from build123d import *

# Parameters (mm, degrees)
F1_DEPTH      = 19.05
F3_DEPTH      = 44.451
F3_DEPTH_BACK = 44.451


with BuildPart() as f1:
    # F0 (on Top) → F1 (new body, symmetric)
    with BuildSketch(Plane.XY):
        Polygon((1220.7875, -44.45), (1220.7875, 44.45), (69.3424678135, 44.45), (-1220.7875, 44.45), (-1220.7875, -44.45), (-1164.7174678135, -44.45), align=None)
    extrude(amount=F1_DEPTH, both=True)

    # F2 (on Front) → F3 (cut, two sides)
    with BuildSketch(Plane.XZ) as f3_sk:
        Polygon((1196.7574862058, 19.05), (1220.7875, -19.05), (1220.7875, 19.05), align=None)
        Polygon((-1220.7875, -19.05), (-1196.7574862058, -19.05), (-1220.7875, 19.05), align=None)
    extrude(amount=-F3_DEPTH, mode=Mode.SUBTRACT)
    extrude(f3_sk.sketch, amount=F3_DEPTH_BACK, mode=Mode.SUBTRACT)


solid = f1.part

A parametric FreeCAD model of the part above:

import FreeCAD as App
import Part
import Sketcher

V = App.Vector
Q = App.Units.Quantity

doc = App.newDocument("Part")
body = doc.addObject("PartDesign::Body", "Body")

# Sketch on XY plane
sketch1 = body.newObject("Sketcher::SketchObject", "Sketch")
sketch1.AttachmentSupport = (doc.getObject("XY_Plane"), [""])
sketch1.MapMode = "FlatFace"
sketch1.addGeometry(Part.LineSegment(V(1220.7875, -44.45, 0), V(1220.7875, 44.45, 0)), False)
sketch1.addGeometry(Part.LineSegment(V(1220.7875, 44.45, 0), V(-1220.7875, 44.45, 0)), False)
sketch1.addGeometry(Part.LineSegment(V(-1220.7875, 44.45, 0), V(-1220.7875, -44.45, 0)), False)
sketch1.addGeometry(Part.LineSegment(V(-1220.7875, -44.45, 0), V(1220.7875, -44.45, 0)), False)
sketch1.addConstraint(Sketcher.Constraint("Coincident", 0, 2, 1, 1))
sketch1.addConstraint(Sketcher.Constraint("Coincident", 1, 2, 2, 1))
sketch1.addConstraint(Sketcher.Constraint("Coincident", 2, 2, 3, 1))
sketch1.addConstraint(Sketcher.Constraint("Coincident", 3, 2, 0, 1))
sketch1.addConstraint(Sketcher.Constraint("Vertical", 0))
sketch1.addConstraint(Sketcher.Constraint("Horizontal", 1))
sketch1.addConstraint(Sketcher.Constraint("Vertical", 2))
sketch1.addConstraint(Sketcher.Constraint("Horizontal", 3))
sketch1.addConstraint(Sketcher.Constraint("Symmetric", 0, 2, 2, 2, -1, 1))
sketch1.addConstraint(Sketcher.Constraint("DistanceY", 0, 1, 0, 2, Q("3.5 in")))
sketch1.addConstraint(Sketcher.Constraint("DistanceX", 1, 2, 1, 1, Q("96.125 in")))
pad1 = body.newObject("PartDesign::Pad", "Pad")
pad1.Profile = sketch1
pad1.Length = Q("1.5 in")
pad1.Midplane = True

# Sketch on XZ plane
sketch2 = body.newObject("Sketcher::SketchObject", "Sketch001")
sketch2.AttachmentSupport = (doc.getObject("XZ_Plane"), [""])
sketch2.MapMode = "FlatFace"
sketch2.addGeometry(Part.LineSegment(V(1196.757486, 19.05, 0), V(1220.7875, -19.05, 0)), False)
sketch2.addGeometry(Part.LineSegment(V(1220.7875, -19.05, 0), V(1220.7875, 19.05, 0)), False)
sketch2.addGeometry(Part.LineSegment(V(1220.7875, 19.05, 0), V(1196.757486, 19.05, 0)), False)
sketch2.addGeometry(Part.LineSegment(V(-1220.7875, -19.05, 0), V(-1196.757486, -19.05, 0)), False)
sketch2.addGeometry(Part.LineSegment(V(-1196.757486, -19.05, 0), V(-1220.7875, 19.05, 0)), False)
sketch2.addGeometry(Part.LineSegment(V(-1220.7875, 19.05, 0), V(-1220.7875, -19.05, 0)), False)
sketch2.addConstraint(Sketcher.Constraint("Coincident", 0, 2, 1, 1))
sketch2.addConstraint(Sketcher.Constraint("Coincident", 1, 2, 2, 1))
sketch2.addConstraint(Sketcher.Constraint("Coincident", 2, 2, 0, 1))
sketch2.addConstraint(Sketcher.Constraint("Coincident", 3, 2, 4, 1))
sketch2.addConstraint(Sketcher.Constraint("Coincident", 4, 2, 5, 1))
sketch2.addConstraint(Sketcher.Constraint("Coincident", 5, 2, 3, 1))
sketch2.addConstraint(Sketcher.Constraint("Vertical", 1))
sketch2.addConstraint(Sketcher.Constraint("Horizontal", 2))
sketch2.addConstraint(Sketcher.Constraint("Horizontal", 3))
sketch2.addConstraint(Sketcher.Constraint("Vertical", 5))
sketch2.addConstraint(Sketcher.Constraint("Symmetric", 2, 2, 3, 2, -1, 1))
sketch2.addConstraint(Sketcher.Constraint("Symmetric", 0, 2, 4, 2, -1, 1))
sketch2.addConstraint(Sketcher.Constraint("Horizontal", 0, 2, 3, 2))
sketch2.addConstraint(Sketcher.Constraint("DistanceY", 1, 1, 1, 2, Q("1.5 in")))
sketch2.addConstraint(Sketcher.Constraint("Angle", 0, Q("-57.76 deg")))
sketch2.addConstraint(Sketcher.Constraint("DistanceX", -1, 1, 0, 2, Q("48.0625 in")))
pocket1 = body.newObject("PartDesign::Pocket", "Pocket")
pocket1.Profile = sketch2
pocket1.Type = "ThroughAll"
pocket1.Midplane = True

doc.recompute()
